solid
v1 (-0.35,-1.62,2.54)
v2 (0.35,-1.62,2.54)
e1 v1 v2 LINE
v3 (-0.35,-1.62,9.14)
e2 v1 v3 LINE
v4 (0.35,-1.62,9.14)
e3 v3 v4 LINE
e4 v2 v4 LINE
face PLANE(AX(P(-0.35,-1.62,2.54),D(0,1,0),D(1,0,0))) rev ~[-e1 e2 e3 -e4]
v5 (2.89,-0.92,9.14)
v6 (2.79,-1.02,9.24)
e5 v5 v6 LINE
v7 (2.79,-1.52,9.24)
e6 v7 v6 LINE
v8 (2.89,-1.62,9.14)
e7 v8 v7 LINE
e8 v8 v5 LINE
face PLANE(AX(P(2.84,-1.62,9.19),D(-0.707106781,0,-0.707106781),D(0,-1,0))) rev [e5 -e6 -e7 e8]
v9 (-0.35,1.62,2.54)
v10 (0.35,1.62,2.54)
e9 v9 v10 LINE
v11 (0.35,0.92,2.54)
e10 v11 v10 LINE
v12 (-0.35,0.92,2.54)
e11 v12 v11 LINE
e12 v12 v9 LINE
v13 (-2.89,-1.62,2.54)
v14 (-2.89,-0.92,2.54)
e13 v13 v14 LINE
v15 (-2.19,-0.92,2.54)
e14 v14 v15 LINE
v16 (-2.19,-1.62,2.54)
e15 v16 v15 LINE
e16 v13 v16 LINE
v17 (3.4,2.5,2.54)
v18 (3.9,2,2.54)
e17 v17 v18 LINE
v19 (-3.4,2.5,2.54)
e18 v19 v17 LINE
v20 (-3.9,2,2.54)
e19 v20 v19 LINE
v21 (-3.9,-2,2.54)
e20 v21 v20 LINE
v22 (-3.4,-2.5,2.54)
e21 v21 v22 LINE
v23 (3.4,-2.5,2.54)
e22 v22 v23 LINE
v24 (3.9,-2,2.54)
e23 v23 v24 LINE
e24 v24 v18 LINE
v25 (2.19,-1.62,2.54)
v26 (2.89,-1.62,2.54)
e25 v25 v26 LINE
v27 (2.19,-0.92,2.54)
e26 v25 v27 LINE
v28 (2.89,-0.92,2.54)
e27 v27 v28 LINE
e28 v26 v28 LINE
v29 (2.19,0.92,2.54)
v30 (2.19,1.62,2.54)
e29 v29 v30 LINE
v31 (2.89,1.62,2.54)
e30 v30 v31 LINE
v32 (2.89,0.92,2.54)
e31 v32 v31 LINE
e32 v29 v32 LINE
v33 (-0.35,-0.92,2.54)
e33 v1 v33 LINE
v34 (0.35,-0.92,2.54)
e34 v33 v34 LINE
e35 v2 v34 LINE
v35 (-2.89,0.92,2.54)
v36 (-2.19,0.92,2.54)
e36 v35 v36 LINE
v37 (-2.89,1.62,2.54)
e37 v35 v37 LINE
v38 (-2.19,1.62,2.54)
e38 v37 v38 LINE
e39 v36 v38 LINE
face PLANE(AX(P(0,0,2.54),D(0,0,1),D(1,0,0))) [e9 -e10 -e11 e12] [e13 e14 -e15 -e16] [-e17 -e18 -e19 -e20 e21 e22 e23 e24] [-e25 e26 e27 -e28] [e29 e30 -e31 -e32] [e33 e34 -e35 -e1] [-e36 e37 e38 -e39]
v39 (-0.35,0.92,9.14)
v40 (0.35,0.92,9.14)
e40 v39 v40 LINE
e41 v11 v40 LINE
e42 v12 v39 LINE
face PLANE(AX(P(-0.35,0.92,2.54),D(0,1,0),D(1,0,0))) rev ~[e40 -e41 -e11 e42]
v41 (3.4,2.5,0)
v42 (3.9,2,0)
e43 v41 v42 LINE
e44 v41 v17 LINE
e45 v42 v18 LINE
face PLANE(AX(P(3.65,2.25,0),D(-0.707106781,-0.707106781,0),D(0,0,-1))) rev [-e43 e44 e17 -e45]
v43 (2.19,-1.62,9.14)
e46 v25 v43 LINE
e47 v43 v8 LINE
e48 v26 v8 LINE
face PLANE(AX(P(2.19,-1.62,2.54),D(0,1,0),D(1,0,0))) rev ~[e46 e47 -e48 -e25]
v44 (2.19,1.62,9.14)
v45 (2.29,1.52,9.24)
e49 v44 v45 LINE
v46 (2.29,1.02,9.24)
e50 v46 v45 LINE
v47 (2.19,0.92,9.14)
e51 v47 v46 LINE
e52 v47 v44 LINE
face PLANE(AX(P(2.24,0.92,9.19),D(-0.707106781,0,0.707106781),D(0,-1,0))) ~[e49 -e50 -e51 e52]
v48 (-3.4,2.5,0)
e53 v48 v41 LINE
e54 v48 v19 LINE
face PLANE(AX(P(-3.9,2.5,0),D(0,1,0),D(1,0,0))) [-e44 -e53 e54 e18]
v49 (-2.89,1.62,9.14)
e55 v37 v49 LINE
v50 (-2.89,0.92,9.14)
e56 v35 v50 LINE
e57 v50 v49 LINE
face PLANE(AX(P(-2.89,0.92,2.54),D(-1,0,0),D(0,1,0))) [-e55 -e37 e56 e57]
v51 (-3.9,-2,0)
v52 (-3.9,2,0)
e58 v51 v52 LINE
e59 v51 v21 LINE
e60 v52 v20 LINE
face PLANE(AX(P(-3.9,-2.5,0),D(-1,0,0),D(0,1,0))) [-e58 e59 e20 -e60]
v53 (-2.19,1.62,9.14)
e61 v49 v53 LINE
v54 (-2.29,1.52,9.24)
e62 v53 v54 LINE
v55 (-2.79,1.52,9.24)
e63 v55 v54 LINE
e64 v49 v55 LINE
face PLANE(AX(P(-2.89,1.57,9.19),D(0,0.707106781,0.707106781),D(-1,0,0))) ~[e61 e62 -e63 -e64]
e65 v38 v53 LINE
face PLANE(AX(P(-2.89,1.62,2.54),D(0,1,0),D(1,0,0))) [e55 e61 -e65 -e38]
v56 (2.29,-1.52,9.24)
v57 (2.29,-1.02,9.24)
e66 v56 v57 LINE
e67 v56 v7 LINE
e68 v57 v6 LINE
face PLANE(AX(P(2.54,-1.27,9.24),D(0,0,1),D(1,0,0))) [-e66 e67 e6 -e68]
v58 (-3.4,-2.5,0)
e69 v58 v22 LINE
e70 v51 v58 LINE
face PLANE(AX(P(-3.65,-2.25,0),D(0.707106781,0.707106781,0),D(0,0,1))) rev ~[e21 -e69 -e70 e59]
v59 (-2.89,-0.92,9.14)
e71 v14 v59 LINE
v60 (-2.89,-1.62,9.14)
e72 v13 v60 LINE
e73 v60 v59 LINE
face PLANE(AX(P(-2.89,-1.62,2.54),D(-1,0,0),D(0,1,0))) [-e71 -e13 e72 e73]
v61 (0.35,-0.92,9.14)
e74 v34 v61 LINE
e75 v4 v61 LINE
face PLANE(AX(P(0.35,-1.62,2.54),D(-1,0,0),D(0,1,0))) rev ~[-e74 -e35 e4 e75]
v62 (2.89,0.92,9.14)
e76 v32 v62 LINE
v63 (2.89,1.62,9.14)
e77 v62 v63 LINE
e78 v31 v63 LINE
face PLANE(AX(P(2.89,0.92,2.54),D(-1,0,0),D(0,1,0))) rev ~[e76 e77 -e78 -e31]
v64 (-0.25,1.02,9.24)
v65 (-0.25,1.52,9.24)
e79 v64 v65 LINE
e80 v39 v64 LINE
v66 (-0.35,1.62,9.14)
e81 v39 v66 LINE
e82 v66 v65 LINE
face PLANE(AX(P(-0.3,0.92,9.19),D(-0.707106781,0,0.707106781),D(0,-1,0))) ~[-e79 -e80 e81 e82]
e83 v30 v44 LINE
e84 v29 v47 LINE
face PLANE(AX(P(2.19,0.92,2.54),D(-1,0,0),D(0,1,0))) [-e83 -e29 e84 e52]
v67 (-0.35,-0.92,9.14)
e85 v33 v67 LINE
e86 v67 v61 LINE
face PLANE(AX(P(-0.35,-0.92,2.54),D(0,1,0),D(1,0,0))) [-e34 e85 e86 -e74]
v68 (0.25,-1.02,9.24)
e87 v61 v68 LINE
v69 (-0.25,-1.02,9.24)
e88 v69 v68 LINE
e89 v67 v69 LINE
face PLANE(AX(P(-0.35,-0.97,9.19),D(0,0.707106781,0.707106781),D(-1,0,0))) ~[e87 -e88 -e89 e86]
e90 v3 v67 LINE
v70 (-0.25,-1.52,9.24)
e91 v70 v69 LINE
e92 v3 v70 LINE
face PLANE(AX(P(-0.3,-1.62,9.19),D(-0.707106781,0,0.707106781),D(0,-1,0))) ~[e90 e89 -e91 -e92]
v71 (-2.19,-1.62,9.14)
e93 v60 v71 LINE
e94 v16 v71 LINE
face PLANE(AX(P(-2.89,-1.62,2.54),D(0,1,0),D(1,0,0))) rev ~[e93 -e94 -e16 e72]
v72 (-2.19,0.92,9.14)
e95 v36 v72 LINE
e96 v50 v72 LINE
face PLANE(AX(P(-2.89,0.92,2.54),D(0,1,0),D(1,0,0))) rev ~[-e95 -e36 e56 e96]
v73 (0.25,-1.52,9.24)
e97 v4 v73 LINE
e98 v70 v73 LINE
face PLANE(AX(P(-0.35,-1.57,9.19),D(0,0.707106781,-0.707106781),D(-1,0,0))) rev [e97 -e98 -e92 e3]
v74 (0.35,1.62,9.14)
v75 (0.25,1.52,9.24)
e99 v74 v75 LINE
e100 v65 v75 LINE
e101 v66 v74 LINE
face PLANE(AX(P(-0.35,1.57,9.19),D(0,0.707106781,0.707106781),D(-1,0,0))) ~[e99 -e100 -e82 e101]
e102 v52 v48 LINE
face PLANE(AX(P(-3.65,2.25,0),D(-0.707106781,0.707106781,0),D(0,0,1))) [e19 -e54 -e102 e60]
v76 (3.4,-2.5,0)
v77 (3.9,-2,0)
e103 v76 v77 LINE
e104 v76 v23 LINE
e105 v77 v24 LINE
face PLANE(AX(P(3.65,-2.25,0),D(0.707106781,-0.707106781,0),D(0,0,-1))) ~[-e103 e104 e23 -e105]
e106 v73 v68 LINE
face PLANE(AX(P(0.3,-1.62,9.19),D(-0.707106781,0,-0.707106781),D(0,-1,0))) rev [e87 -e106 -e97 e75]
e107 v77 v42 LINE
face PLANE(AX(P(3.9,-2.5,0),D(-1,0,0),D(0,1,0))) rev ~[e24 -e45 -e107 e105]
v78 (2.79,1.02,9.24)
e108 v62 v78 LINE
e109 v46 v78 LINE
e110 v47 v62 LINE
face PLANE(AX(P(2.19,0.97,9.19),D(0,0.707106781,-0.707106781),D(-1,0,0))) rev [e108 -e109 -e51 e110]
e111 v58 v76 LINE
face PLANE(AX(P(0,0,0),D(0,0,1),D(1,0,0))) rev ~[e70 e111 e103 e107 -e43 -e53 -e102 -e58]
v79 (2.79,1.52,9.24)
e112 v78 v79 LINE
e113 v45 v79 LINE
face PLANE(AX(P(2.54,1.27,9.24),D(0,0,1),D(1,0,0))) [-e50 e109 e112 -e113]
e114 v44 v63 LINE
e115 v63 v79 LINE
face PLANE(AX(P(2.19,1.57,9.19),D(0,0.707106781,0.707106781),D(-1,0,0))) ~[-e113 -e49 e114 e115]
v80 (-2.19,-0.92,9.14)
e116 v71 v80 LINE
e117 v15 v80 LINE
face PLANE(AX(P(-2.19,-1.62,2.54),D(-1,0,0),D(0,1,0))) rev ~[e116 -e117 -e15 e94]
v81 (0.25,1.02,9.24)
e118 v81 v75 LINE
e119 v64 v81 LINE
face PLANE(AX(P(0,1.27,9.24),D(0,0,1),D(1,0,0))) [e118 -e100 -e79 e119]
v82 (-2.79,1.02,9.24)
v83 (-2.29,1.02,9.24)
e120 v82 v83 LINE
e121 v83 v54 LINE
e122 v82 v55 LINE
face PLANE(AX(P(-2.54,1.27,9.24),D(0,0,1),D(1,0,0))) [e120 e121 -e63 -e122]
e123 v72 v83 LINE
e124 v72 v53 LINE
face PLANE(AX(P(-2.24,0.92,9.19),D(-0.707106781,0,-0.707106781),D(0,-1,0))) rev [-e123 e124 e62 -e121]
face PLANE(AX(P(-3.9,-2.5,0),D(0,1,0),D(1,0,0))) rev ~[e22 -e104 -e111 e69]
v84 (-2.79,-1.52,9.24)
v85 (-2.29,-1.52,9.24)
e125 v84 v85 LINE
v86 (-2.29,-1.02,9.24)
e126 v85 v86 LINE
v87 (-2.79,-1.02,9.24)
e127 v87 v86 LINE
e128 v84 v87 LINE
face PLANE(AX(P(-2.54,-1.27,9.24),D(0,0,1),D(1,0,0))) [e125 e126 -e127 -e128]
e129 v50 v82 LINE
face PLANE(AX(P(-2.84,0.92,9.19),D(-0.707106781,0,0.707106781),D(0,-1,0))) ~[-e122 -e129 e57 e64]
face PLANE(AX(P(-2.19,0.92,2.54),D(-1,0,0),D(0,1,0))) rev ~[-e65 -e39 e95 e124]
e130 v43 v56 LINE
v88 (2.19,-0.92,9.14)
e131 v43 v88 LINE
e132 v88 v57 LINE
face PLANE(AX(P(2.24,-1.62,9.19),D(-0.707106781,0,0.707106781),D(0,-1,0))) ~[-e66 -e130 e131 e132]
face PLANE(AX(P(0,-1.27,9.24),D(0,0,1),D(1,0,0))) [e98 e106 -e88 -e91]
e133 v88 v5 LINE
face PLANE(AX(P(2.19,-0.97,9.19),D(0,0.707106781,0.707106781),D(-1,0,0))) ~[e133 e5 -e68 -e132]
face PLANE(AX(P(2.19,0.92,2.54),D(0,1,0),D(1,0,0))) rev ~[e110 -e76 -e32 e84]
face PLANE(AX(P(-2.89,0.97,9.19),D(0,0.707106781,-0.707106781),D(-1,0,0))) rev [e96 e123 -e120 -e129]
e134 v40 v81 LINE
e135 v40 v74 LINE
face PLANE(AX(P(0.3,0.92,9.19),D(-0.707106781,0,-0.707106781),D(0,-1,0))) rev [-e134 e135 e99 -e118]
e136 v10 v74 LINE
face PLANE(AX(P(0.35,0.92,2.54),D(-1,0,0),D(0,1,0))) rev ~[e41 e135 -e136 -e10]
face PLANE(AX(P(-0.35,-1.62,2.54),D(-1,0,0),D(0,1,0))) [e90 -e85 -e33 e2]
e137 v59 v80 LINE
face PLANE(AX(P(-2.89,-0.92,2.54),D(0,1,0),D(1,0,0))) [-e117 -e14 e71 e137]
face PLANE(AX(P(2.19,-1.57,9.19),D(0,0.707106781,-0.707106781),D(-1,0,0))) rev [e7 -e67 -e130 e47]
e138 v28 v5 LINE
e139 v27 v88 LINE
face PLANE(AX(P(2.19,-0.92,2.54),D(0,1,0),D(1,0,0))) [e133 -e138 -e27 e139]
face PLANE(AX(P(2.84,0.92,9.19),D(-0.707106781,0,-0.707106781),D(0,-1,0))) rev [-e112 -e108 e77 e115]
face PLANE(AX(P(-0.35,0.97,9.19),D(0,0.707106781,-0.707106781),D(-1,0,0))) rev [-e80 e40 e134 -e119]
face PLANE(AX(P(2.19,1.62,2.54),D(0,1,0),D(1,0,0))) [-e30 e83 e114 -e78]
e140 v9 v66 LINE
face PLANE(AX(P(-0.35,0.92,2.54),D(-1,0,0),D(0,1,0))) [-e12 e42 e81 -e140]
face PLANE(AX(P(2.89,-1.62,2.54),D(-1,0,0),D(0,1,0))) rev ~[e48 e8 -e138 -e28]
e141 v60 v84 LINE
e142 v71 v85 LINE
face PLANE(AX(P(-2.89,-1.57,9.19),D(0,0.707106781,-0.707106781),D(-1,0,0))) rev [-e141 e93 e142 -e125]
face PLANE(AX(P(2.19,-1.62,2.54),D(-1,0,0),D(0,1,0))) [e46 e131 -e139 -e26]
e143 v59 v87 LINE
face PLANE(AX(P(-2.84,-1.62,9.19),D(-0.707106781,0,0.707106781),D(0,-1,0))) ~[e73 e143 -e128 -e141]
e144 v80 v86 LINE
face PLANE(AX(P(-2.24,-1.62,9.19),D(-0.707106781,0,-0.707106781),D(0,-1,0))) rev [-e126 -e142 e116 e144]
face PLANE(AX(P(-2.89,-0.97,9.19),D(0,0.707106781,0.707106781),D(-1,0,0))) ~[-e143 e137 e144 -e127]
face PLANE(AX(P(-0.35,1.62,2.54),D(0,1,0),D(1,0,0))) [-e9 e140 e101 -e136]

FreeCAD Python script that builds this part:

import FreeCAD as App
import Part
import Sketcher
from FreeCAD import Vector


def edges_at(feature, points):
    """Names of the edges that pass closest to the given points."""
    edges = feature.Shape.Edges
    near = lambda p: min(range(len(edges)), key=lambda i: edges[i].distToShape(Part.Vertex(*p))[0])
    return sorted({f"Edge{near(p) + 1}" for p in points})


def add_polygon(sketch, points):
    """Adds a closed chain of lines whose ends are joined by coincident constraints."""
    first, n = sketch.GeometryCount, len(points)
    for a, b in zip(points, points[1:] + points[:1]):
        sketch.addGeometry(Part.LineSegment(App.Vector(*a, 0), App.Vector(*b, 0)), False)
    for i in range(n):
        sketch.addConstraint(Sketcher.Constraint("Coincident", first + i, 2, first + (i + 1) % n, 1))

doc = App.newDocument("Part")
body = doc.addObject("PartDesign::Body", "Body")

sketch1 = body.newObject("Sketcher::SketchObject", "Sketch")
sketch1.AttachmentSupport = (doc.getObject("XY_Plane"), [""])
sketch1.MapMode = "FlatFace"
add_polygon(sketch1, [(-4, 2), (-4, -2), (4, -2), (4, 2)])
sketch1.addConstraint([
    Sketcher.Constraint("Vertical", 0),
    Sketcher.Constraint("Horizontal", 1),
    Sketcher.Constraint("Vertical", 2),
    Sketcher.Constraint("Horizontal", 3),
    Sketcher.Constraint("Symmetric", 0, 2, 2, 2, -1, 1),
    Sketcher.Constraint("DistanceY", 0, 2, 0, 1, 5.0),
    Sketcher.Constraint("DistanceX", 1, 1, 1, 2, 7.8),
])
pad1 = body.newObject("PartDesign::Pad", "Pad")
pad1.Profile = sketch1
pad1.Length = 2.54

sketch2 = body.newObject("Sketcher::SketchObject", "Sketch001")
sketch2.AttachmentSupport = (doc.getObject("XY_Plane"), [""])
sketch2.MapMode = "FlatFace"
sketch2.AttachmentOffset = App.Placement(Vector(0, 0, 2.54), App.Rotation())
add_polygon(sketch2, [(-0.3, 1.6), (-0.3, 0.9), (0.3, 0.9), (0.3, 1.6)])
add_polygon(sketch2, [(-2.9, 1.6), (-2.9, 0.9), (-2.2, 0.9), (-2.2, 1.6)])
add_polygon(sketch2, [(2.2, 1.6), (2.2, 0.9), (2.9, 0.9), (2.9, 1.6)])
add_polygon(sketch2, [(-0.3, -0.9), (-0.3, -1.6), (0.3, -1.6), (0.3, -0.9)])
add_polygon(sketch2, [(2.2, -0.9), (2.2, -1.6), (2.9, -1.6), (2.9, -0.9)])
add_polygon(sketch2, [(-2.9, -0.9), (-2.9, -1.6), (-2.2, -1.6), (-2.2, -0.9)])
sketch2.addConstraint([
    Sketcher.Constraint("Vertical", 0),
    Sketcher.Constraint("Horizontal", 1),
    Sketcher.Constraint("Vertical", 2),
    Sketcher.Constraint("Horizontal", 3),
    Sketcher.Constraint("Vertical", 4),
    Sketcher.Constraint("Horizontal", 5),
    Sketcher.Constraint("Vertical", 6),
    Sketcher.Constraint("Horizontal", 7),
    Sketcher.Constraint("Vertical", 8),
    Sketcher.Constraint("Horizontal", 9),
    Sketcher.Constraint("Vertical", 10),
    Sketcher.Constraint("Horizontal", 11),
    Sketcher.Constraint("Vertical", 12),
    Sketcher.Constraint("Horizontal", 13),
    Sketcher.Constraint("Vertical", 14),
    Sketcher.Constraint("Horizontal", 15),
    Sketcher.Constraint("Vertical", 16),
    Sketcher.Constraint("Horizontal", 17),
    Sketcher.Constraint("Vertical", 18),
    Sketcher.Constraint("Horizontal", 19),
    Sketcher.Constraint("Vertical", 20),
    Sketcher.Constraint("Horizontal", 21),
    Sketcher.Constraint("Vertical", 22),
    Sketcher.Constraint("Horizontal", 23),
    Sketcher.Constraint("Symmetric", 2, 2, 12, 2, -1, 1),
    Sketcher.Constraint("Symmetric", 0, 2, 14, 2, -1, 1),
    Sketcher.Constraint("Symmetric", 6, 2, 16, 2, -1, 1),
    Sketcher.Constraint("Symmetric", 4, 2, 18, 2, -1, 1),
    Sketcher.Constraint("Symmetric", 10, 2, 20, 2, -1, 1),
    Sketcher.Constraint("Symmetric", 8, 2, 22, 2, -1, 1),
    Sketcher.Constraint("Symmetric", 5, 2, 8, 2, -2),
    Sketcher.Constraint("Symmetric", 7, 2, 10, 2, -2),
    Sketcher.Constraint("Horizontal", 1, 2, 4, 2),
    Sketcher.Constraint("Horizontal", 3, 2, 6, 2),
    Sketcher.Constraint("Vertical", 3, 2, 12, 2),
    Sketcher.Constraint("Equal", 3, 5),
    Sketcher.Constraint("Equal", 23, 0),
    Sketcher.Constraint("DistanceX", 1, 1, 1, 2, 0.7),
    Sketcher.Constraint("DistanceY", -1, 1, 0, 2, 0.92),
    Sketcher.Constraint("DistanceX", 4, 2, -1, 1, 2.89),
])
pad2 = body.newObject("PartDesign::Pad", "Pad001")
pad2.Profile = sketch2
pad2.Length = 6.7
doc.recompute()

chamfer = body.newObject("PartDesign::Chamfer", "Chamfer")
chamfer.Base = (pad2, edges_at(pad2, [
    (3.9, -2.5, 1.27),
    (-3.9, -2.5, 1.27),
    (-3.9, 2.5, 1.27),
    (3.9, 2.5, 1.27),
]))
chamfer.Size = 0.5
doc.recompute()

chamfer2 = body.newObject("PartDesign::Chamfer", "Chamfer001")
chamfer2.Base = (chamfer, edges_at(chamfer, [
    (-2.89, 1.27, 9.24),
    (-2.54, 0.92, 9.24),
    (-2.19, 1.27, 9.24),
    (-2.54, 1.62, 9.24),
    (-0.35, 1.27, 9.24),
    (0, 0.92, 9.24),
    (0.35, 1.27, 9.24),
    (0, 1.62, 9.24),
    (2.19, 1.27, 9.24),
    (2.54, 0.92, 9.24),
    (2.89, 1.27, 9.24),
    (2.54, 1.62, 9.24),
    (-0.35, -1.27, 9.24),
    (0, -1.62, 9.24),
    (0.35, -1.27, 9.24),
    (0, -0.92, 9.24),
    (2.19, -1.27, 9.24),
    (2.54, -1.62, 9.24),
    (2.89, -1.27, 9.24),
    (2.54, -0.92, 9.24),
    (-2.89, -1.27, 9.24),
    (-2.54, -1.62, 9.24),
    (-2.19, -1.27, 9.24),
    (-2.54, -0.92, 9.24),
]))
chamfer2.Size = 0.1

doc.recompute()
